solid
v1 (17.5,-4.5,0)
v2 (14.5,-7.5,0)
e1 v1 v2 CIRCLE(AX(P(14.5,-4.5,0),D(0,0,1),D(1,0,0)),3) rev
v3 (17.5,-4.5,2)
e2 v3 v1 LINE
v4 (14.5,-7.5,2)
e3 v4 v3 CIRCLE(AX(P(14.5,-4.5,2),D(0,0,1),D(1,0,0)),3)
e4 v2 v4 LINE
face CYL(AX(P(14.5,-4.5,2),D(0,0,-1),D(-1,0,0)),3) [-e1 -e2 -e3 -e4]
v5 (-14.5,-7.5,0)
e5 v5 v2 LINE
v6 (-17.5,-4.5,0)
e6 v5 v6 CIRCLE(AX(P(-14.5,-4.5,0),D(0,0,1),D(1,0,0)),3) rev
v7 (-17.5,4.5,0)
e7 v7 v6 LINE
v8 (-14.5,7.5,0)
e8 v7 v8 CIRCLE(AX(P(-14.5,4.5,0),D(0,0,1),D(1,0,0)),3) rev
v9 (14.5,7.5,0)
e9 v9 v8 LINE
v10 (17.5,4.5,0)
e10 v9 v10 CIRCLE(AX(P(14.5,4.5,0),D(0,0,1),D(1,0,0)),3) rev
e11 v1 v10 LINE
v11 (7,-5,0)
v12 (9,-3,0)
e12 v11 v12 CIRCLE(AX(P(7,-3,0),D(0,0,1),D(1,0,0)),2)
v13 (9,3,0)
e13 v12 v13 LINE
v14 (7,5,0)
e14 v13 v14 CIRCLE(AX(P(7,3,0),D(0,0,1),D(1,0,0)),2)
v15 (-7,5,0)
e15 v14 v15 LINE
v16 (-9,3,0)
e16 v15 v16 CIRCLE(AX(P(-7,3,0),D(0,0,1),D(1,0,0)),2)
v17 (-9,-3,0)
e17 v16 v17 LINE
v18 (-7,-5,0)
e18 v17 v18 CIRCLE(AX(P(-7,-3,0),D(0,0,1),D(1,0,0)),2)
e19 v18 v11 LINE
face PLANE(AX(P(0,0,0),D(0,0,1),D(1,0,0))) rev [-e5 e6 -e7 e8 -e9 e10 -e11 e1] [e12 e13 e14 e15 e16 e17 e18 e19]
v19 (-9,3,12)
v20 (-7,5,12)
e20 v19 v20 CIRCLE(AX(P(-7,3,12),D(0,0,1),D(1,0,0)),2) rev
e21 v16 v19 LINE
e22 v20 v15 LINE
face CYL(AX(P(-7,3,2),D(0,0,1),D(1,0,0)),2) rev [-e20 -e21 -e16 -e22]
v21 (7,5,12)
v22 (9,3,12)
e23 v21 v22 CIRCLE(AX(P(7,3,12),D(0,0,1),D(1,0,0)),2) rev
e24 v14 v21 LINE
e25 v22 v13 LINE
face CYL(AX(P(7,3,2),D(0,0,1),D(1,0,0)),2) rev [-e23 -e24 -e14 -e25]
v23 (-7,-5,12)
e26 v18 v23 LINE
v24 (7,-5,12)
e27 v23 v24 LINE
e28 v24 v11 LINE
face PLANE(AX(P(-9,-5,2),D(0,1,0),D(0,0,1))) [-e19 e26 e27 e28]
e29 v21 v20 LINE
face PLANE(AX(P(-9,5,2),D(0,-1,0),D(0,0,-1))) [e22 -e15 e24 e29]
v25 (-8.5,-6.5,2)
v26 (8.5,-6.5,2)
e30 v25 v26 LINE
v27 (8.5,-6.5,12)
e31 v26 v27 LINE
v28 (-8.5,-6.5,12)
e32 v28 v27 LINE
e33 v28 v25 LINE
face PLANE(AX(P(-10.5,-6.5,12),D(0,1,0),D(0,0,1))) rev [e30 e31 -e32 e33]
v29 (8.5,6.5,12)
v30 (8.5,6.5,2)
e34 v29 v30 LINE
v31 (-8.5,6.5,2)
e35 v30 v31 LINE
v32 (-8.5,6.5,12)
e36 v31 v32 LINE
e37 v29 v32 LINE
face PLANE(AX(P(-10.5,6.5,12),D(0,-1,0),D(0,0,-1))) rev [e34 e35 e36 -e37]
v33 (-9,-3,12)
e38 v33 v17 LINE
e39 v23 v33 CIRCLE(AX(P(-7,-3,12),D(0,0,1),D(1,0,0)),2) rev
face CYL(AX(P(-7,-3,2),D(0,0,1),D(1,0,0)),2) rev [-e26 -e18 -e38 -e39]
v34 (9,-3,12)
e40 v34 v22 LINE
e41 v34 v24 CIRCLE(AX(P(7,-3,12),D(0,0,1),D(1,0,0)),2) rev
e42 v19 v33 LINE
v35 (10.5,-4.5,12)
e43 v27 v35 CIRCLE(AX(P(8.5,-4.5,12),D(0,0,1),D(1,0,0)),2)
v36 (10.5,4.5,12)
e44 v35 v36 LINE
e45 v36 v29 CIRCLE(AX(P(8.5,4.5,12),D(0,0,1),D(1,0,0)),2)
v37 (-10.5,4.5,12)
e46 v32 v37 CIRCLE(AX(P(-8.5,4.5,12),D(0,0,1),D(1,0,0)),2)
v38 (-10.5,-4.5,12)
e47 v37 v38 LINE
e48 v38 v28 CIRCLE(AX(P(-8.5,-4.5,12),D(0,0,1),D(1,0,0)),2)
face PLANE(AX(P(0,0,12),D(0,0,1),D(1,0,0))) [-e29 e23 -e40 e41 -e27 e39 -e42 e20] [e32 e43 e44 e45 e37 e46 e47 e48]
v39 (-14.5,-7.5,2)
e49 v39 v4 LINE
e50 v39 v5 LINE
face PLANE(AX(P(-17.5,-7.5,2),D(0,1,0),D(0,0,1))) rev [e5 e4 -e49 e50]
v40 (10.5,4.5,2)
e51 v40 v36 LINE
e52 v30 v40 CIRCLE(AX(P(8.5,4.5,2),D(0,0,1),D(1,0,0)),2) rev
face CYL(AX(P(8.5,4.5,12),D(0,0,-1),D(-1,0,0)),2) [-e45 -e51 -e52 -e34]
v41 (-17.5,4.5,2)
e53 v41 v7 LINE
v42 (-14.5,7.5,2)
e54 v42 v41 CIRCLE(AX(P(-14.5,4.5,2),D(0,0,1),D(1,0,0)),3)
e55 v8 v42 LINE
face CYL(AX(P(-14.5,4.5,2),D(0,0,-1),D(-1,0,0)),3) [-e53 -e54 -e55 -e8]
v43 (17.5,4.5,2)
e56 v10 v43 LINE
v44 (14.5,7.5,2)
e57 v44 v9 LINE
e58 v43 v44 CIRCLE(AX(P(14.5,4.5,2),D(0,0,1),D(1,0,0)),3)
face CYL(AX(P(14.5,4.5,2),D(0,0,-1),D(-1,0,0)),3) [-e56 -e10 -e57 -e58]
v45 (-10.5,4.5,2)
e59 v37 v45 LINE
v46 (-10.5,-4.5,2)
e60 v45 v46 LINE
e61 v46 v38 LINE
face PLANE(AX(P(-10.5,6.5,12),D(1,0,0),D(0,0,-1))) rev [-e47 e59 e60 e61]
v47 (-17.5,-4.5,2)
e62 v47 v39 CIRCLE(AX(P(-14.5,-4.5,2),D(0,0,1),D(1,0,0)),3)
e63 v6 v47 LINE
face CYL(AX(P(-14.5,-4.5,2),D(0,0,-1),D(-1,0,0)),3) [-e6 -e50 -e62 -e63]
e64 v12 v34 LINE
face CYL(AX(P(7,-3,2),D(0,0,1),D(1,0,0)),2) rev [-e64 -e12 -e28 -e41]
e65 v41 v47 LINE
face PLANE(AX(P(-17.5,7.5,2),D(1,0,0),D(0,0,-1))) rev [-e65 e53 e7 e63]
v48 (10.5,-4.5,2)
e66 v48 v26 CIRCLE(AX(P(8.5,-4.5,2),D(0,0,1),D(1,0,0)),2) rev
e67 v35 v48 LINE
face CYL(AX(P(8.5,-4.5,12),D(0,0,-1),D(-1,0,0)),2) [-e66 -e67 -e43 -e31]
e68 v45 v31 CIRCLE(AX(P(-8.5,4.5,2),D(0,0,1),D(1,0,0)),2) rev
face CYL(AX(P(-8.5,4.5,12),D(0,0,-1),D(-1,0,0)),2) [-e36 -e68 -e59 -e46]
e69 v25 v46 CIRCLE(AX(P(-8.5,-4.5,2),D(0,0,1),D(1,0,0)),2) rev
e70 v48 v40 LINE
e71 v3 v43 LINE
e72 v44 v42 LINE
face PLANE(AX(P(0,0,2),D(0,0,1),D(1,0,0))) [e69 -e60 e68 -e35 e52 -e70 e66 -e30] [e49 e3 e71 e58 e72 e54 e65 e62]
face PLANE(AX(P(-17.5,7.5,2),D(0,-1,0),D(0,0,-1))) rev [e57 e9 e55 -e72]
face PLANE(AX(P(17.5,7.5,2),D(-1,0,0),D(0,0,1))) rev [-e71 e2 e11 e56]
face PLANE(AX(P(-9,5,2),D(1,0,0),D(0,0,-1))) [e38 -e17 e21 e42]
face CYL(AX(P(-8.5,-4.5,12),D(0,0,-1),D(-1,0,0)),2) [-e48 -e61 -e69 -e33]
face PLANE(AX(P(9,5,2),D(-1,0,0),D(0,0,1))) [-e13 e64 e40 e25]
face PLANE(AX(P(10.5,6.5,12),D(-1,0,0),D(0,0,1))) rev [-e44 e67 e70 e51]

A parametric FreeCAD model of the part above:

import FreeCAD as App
import Part
import Sketcher
from FreeCAD import Vector


def edges_at(feature, points):
    """Names of the edges that pass closest to the given points."""
    edges = feature.Shape.Edges
    near = lambda p: min(range(len(edges)), key=lambda i: edges[i].distToShape(Part.Vertex(*p))[0])
    return sorted({f"Edge{near(p) + 1}" for p in points})

doc = App.newDocument("Part")
body = doc.addObject("PartDesign::Body", "Body")

# Sketch on XY plane
sketch1 = doc.addObject("Sketcher::SketchObject", "Sketch")
body.addObject(sketch1)
sketch1.AttachmentSupport = (doc.XY_Plane, [""])
sketch1.MapMode = "FlatFace"
sketch1.addGeometry([
    Part.LineSegment(Vector(-18, 8, 0), Vector(-18, -8, 0)),  # 0
    Part.LineSegment(Vector(-18, -8, 0), Vector(18, -8, 0)),  # 1
    Part.LineSegment(Vector(18, -8, 0), Vector(18, 8, 0)),  # 2
    Part.LineSegment(Vector(18, 8, 0), Vector(-18, 8, 0)),  # 3
    Part.LineSegment(Vector(9, -5, 0), Vector(-9, -5, 0)),  # 4
    Part.LineSegment(Vector(-9, -5, 0), Vector(-9, 5, 0)),  # 5
    Part.LineSegment(Vector(-9, 5, 0), Vector(9, 5, 0)),  # 6
    Part.LineSegment(Vector(9, 5, 0), Vector(9, -5, 0)),  # 7
], False)
sketch1.addConstraint([
    Sketcher.Constraint("Coincident", 0, 2, 1, 1),
    Sketcher.Constraint("Coincident", 1, 2, 2, 1),
    Sketcher.Constraint("Coincident", 2, 2, 3, 1),
    Sketcher.Constraint("Coincident", 3, 2, 0, 1),
    Sketcher.Constraint("Coincident", 4, 2, 5, 1),
    Sketcher.Constraint("Coincident", 5, 2, 6, 1),
    Sketcher.Constraint("Coincident", 6, 2, 7, 1),
    Sketcher.Constraint("Coincident", 7, 2, 4, 1),
    Sketcher.Constraint("Vertical", 0),
    Sketcher.Constraint("Horizontal", 1),
    Sketcher.Constraint("Vertical", 2),
    Sketcher.Constraint("Horizontal", 3),
    Sketcher.Constraint("Horizontal", 4),
    Sketcher.Constraint("Vertical", 5),
    Sketcher.Constraint("Horizontal", 6),
    Sketcher.Constraint("Vertical", 7),
    Sketcher.Constraint("Symmetric", 0, 2, 2, 2, -1, 1),
    Sketcher.Constraint("Symmetric", 4, 2, 6, 2, -1, 1),
    Sketcher.Constraint("DistanceX", 1, 1, 1, 2, 35.0),
    Sketcher.Constraint("DistanceX", 4, 2, 4, 1, 18.0),
    Sketcher.Constraint("DistanceY", 0, 2, 0, 1, 15.0),
    Sketcher.Constraint("DistanceY", 5, 1, 5, 2, 10.0),
])
pad1 = doc.addObject("PartDesign::Pad", "Pad")
body.addObject(pad1)
pad1.Profile = sketch1
pad1.Length = 2

# Sketch on XY plane
sketch2 = doc.addObject("Sketcher::SketchObject", "Sketch001")
body.addObject(sketch2)
sketch2.AttachmentSupport = (doc.XY_Plane, [""])
sketch2.MapMode = "FlatFace"
sketch2.AttachmentOffset = App.Placement(Vector(0, 0, 2), App.Rotation())
sketch2.addGeometry([
    Part.LineSegment(Vector(-10, 6, 0), Vector(-10, -6, 0)),  # 0
    Part.LineSegment(Vector(-10, -6, 0), Vector(10, -6, 0)),  # 1
    Part.LineSegment(Vector(10, -6, 0), Vector(10, 6, 0)),  # 2
    Part.LineSegment(Vector(10, 6, 0), Vector(-10, 6, 0)),  # 3
    Part.LineSegment(Vector(9, -5, 0), Vector(-9, -5, 0)),  # 4
    Part.LineSegment(Vector(-9, -5, 0), Vector(-9, 5, 0)),  # 5
    Part.LineSegment(Vector(-9, 5, 0), Vector(9, 5, 0)),  # 6
    Part.LineSegment(Vector(9, 5, 0), Vector(9, -5, 0)),  # 7
], False)
sketch2.addConstraint([
    Sketcher.Constraint("Coincident", 0, 2, 1, 1),
    Sketcher.Constraint("Coincident", 1, 2, 2, 1),
    Sketcher.Constraint("Coincident", 2, 2, 3, 1),
    Sketcher.Constraint("Coincident", 3, 2, 0, 1),
    Sketcher.Constraint("Coincident", 4, 2, 5, 1),
    Sketcher.Constraint("Coincident", 5, 2, 6, 1),
    Sketcher.Constraint("Coincident", 6, 2, 7, 1),
    Sketcher.Constraint("Coincident", 7, 2, 4, 1),
    Sketcher.Constraint("Vertical", 0),
    Sketcher.Constraint("Horizontal", 1),
    Sketcher.Constraint("Vertical", 2),
    Sketcher.Constraint("Horizontal", 3),
    Sketcher.Constraint("Horizontal", 4),
    Sketcher.Constraint("Vertical", 5),
    Sketcher.Constraint("Horizontal", 6),
    Sketcher.Constraint("Vertical", 7),
    Sketcher.Constraint("Symmetric", 0, 2, 2, 2, -1, 1),
    Sketcher.Constraint("Symmetric", 4, 2, 6, 2, -1, 1),
    Sketcher.Constraint("DistanceX", 1, 1, 1, 2, 21.0),
    Sketcher.Constraint("DistanceX", 4, 2, 4, 1, 18.0),
    Sketcher.Constraint("DistanceY", 0, 2, 0, 1, 13.0),
    Sketcher.Constraint("DistanceY", 5, 1, 5, 2, 10.0),
])
pad2 = doc.addObject("PartDesign::Pad", "Pad001")
body.addObject(pad2)
pad2.Profile = sketch2
pad2.Length = 10
doc.recompute()

fillet = doc.addObject("PartDesign::Fillet", "Fillet")
body.addObject(fillet)
fillet.Base = (pad2, edges_at(pad2, [
    (17.5, -7.5, 1),
    (-17.5, -7.5, 1),
    (-17.5, 7.5, 1),
    (17.5, 7.5, 1),
]))
fillet.Radius = 3
doc.recompute()

fillet2 = doc.addObject("PartDesign::Fillet", "Fillet001")
body.addObject(fillet2)
fillet2.Base = (fillet, edges_at(fillet, [
    (9, -5, 6),
    (9, 5, 6),
    (-9, 5, 6),
    (-9, -5, 6),
]))
fillet2.Radius = 2
doc.recompute()

fillet3 = doc.addObject("PartDesign::Fillet", "Fillet002")
body.addObject(fillet3)
fillet3.Base = (fillet2, edges_at(fillet2, [
    (10.5, -6.5, 7),
    (10.5, 6.5, 7),
    (-10.5, 6.5, 7),
    (-10.5, -6.5, 7),
]))
fillet3.Radius = 2

doc.recompute()
